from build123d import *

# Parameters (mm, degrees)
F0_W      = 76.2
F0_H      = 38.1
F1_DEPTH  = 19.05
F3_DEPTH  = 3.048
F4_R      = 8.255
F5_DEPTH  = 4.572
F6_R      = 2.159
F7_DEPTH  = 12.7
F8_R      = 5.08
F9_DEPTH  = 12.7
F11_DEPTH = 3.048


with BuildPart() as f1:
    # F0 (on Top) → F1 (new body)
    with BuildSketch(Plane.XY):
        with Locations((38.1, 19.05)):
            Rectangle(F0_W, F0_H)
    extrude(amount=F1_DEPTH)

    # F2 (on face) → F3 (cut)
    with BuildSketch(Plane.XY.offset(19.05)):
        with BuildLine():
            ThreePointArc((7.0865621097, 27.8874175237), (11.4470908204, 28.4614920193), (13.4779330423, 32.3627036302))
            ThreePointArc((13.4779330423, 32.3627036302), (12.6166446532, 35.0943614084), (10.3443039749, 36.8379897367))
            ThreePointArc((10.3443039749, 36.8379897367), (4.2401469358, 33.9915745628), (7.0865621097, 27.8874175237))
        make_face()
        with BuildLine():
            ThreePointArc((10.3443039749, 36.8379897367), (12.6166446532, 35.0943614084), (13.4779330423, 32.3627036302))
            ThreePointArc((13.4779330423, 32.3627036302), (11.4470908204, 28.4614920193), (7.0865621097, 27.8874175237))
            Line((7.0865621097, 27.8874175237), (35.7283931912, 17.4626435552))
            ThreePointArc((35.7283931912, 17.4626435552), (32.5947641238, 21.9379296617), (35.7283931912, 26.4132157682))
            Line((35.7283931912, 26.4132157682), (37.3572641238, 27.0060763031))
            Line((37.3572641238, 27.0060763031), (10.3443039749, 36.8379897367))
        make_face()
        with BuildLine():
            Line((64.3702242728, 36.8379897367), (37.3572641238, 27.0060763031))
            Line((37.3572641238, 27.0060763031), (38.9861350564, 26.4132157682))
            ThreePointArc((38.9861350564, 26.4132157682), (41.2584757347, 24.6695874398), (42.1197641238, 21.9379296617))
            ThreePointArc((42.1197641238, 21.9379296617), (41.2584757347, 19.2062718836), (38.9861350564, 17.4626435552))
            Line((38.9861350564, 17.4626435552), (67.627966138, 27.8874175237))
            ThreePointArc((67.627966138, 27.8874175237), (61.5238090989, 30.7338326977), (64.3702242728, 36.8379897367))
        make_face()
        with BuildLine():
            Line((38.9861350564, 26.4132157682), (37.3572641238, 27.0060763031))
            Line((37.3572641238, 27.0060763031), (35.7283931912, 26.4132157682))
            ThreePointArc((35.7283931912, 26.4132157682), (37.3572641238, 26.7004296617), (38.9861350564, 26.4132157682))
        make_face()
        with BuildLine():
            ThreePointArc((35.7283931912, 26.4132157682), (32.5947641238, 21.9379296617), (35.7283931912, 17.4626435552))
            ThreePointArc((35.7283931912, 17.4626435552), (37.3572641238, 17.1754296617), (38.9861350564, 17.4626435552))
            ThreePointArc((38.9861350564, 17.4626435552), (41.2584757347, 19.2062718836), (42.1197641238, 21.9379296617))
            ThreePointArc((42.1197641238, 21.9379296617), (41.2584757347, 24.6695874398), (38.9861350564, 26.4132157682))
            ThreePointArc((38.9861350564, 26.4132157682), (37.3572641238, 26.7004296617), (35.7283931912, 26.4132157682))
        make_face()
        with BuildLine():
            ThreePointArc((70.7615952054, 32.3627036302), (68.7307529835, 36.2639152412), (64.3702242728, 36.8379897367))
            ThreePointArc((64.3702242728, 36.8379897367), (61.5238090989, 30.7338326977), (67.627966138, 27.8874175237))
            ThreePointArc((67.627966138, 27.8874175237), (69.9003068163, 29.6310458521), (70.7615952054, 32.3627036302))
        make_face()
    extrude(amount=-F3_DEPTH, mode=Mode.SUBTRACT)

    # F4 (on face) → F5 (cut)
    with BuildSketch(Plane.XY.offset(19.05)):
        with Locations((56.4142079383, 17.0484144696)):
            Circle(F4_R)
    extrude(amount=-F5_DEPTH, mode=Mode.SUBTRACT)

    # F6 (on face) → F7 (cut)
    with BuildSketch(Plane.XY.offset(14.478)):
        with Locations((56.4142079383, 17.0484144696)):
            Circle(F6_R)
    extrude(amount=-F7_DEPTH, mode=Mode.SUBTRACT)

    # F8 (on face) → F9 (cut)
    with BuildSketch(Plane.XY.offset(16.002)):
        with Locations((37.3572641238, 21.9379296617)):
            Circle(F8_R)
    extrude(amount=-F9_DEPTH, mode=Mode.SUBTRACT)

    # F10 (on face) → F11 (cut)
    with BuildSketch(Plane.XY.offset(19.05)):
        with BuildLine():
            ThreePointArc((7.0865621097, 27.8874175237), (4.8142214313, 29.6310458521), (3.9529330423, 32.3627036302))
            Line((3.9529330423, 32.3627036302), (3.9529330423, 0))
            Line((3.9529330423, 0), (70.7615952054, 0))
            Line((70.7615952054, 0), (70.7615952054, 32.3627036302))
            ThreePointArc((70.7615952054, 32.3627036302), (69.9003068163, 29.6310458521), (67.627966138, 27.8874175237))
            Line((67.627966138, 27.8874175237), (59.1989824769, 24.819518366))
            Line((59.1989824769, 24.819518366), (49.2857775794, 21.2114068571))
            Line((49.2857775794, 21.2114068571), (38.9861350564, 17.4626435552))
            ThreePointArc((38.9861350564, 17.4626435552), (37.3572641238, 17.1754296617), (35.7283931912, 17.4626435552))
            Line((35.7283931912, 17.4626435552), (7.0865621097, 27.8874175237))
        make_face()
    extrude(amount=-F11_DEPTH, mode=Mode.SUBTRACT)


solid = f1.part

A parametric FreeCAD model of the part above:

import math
import FreeCAD as App
import Part
import Sketcher
Q = App.Units.Quantity

doc = App.newDocument("Part")
body = doc.addObject("PartDesign::Body", "Body")

# Sketch on XY plane
sketch1 = body.newObject("Sketcher::SketchObject", "Sketch")
sketch1.AttachmentSupport = (doc.getObject("XY_Plane"), [""])
sketch1.MapMode = "FlatFace"
sketch1.addGeometry(Part.LineSegment(App.Vector(0, 38, 0), App.Vector(0, 0, 0)), False)
sketch1.addGeometry(Part.LineSegment(App.Vector(0, 0, 0), App.Vector(76, 0, 0)), False)
sketch1.addGeometry(Part.LineSegment(App.Vector(76, 0, 0), App.Vector(76, 38, 0)), False)
sketch1.addGeometry(Part.LineSegment(App.Vector(76, 38, 0), App.Vector(0, 38, 0)), False)
sketch1.addConstraint(Sketcher.Constraint("Coincident", 0, 2, 1, 1))
sketch1.addConstraint(Sketcher.Constraint("Coincident", 1, 2, 2, 1))
sketch1.addConstraint(Sketcher.Constraint("Coincident", 2, 2, 3, 1))
sketch1.addConstraint(Sketcher.Constraint("Coincident", 3, 2, 0, 1))
sketch1.addConstraint(Sketcher.Constraint("Vertical", 0))
sketch1.addConstraint(Sketcher.Constraint("Horizontal", 1))
sketch1.addConstraint(Sketcher.Constraint("Vertical", 2))
sketch1.addConstraint(Sketcher.Constraint("Horizontal", 3))
sketch1.addConstraint(Sketcher.Constraint("Coincident", 0, 2, -1, 1))
sketch1.addConstraint(Sketcher.Constraint("DistanceX", 1, 1, 1, 2, Q("3 in")))
sketch1.addConstraint(Sketcher.Constraint("DistanceY", 0, 2, 0, 1, Q("1.5 in")))
pad1 = body.newObject("PartDesign::Pad", "Pad")
pad1.Profile = sketch1
pad1.Length = Q("0.75 in")

# Sketch on XY plane
sketch2 = body.newObject("Sketcher::SketchObject", "Sketch001")
sketch2.AttachmentSupport = (doc.getObject("XY_Plane"), [""])
sketch2.MapMode = "FlatFace"
sketch2.AttachmentOffset = App.Placement(App.Vector(0, 0, 0.75 * 25.4), App.Rotation())
sketch2.addGeometry(Part.ArcOfCircle(Part.Circle(App.Vector(8.7, 32.4, 0), App.Vector(0, 0, 1), 4.8), math.radians(70), math.radians(250)), False)
sketch2.addGeometry(Part.LineSegment(App.Vector(7.1, 27.9, 0), App.Vector(35.7, 17.5, 0)), False)
sketch2.addGeometry(Part.ArcOfCircle(Part.Circle(App.Vector(37.4, 21.9, 0), App.Vector(0, 0, 1), 4.8), math.radians(-110), math.radians(-70)), False)
sketch2.addGeometry(Part.LineSegment(App.Vector(39, 17.5, 0), App.Vector(67.6, 27.9, 0)), False)
sketch2.addGeometry(Part.ArcOfCircle(Part.Circle(App.Vector(66, 32.4, 0), App.Vector(0, 0, 1), 4.8), math.radians(-70), math.radians(0)), False)
sketch2.addGeometry(Part.ArcOfCircle(Part.Circle(App.Vector(66, 32.4, 0), App.Vector(0, 0, 1), 4.8), math.radians(0), math.radians(110)), False)
sketch2.addGeometry(Part.LineSegment(App.Vector(64.4, 36.8, 0), App.Vector(37.4, 27, 0)), False)
sketch2.addGeometry(Part.LineSegment(App.Vector(37.4, 27, 0), App.Vector(10.3, 36.8, 0)), False)
sketch2.addConstraint(Sketcher.Constraint("Tangent", 0, 2, 1, 1))
sketch2.addConstraint(Sketcher.Constraint("Tangent", 1, 2, 2, 1))
sketch2.addConstraint(Sketcher.Constraint("Tangent", 2, 2, 3, 1))
sketch2.addConstraint(Sketcher.Constraint("Tangent", 3, 2, 4, 1))
sketch2.addConstraint(Sketcher.Constraint("Tangent", 4, 2, 5, 1))
sketch2.addConstraint(Sketcher.Constraint("Tangent", 5, 2, 6, 1))
sketch2.addConstraint(Sketcher.Constraint("Coincident", 6, 2, 7, 1))
sketch2.addConstraint(Sketcher.Constraint("Tangent", 7, 2, 0, 1))
sketch2.addConstraint(Sketcher.Constraint("Equal", 0, 2))
sketch2.addConstraint(Sketcher.Constraint("Equal", 2, 4))
sketch2.addConstraint(Sketcher.Constraint("Equal", 4, 5))
sketch2.addConstraint(Sketcher.Constraint("Parallel", 3, 6))
sketch2.addConstraint(Sketcher.Constraint("Parallel", 1, 7))
sketch2.addConstraint(Sketcher.Constraint("Horizontal", 0, 3, 4, 3))
sketch2.addConstraint(Sketcher.Constraint("Horizontal", 1, 2, 2, 2))
sketch2.addConstraint(Sketcher.Constraint("Horizontal", 5, 3, 4, 2))
sketch2.addConstraint(Sketcher.Constraint("Angle", 1, Q("-20 deg")))
sketch2.addConstraint(Sketcher.Constraint("Radius", 0, Q("0.1875 in")))
sketch2.addConstraint(Sketcher.Constraint("Distance", 1, Q("1.2 in")))
sketch2.addConstraint(Sketcher.Constraint("DistanceY", -1, 1, 2, 3, 21.93793))
sketch2.addConstraint(Sketcher.Constraint("DistanceX", -1, 1, 0, 3, 8.715433))
pocket1 = body.newObject("PartDesign::Pocket", "Pocket")
pocket1.Profile = sketch2
pocket1.Length = Q("0.12 in")

# Sketch on XY plane
sketch3 = body.newObject("Sketcher::SketchObject", "Sketch002")
sketch3.AttachmentSupport = (doc.getObject("XY_Plane"), [""])
sketch3.MapMode = "FlatFace"
sketch3.AttachmentOffset = App.Placement(App.Vector(0, 0, 0.75 * 25.4), App.Rotation())
sketch3.addGeometry(Part.Circle(App.Vector(56, 17, 0), App.Vector(0, 0, 1), 8), False)
sketch3.addConstraint(Sketcher.Constraint("Diameter", 0, Q("0.65 in")))
sketch3.addConstraint(Sketcher.Constraint("DistanceX", -1, 1, 0, 3, 56.414208))
sketch3.addConstraint(Sketcher.Constraint("DistanceY", -1, 1, 0, 3, 17.048414))
pocket2 = body.newObject("PartDesign::Pocket", "Pocket001")
pocket2.Profile = sketch3
pocket2.Length = Q("0.18 in")

# Sketch on XY plane
sketch4 = body.newObject("Sketcher::SketchObject", "Sketch003")
sketch4.AttachmentSupport = (doc.getObject("XY_Plane"), [""])
sketch4.MapMode = "FlatFace"
sketch4.AttachmentOffset = App.Placement(App.Vector(0, 0, 0.57 * 25.4), App.Rotation())
sketch4.addGeometry(Part.Circle(App.Vector(56.4, 17, 0), App.Vector(0, 0, 1), 2.2), False)
sketch4.addConstraint(Sketcher.Constraint("Diameter", 0, Q("0.17 in")))
sketch4.addConstraint(Sketcher.Constraint("DistanceX", -1, 1, 0, 3, 56.414208))
sketch4.addConstraint(Sketcher.Constraint("DistanceY", -1, 1, 0, 3, 17.048414))
pocket3 = body.newObject("PartDesign::Pocket", "Pocket002")
pocket3.Profile = sketch4
pocket3.Length = Q("0.5 in")

# Sketch on XY plane
sketch5 = body.newObject("Sketcher::SketchObject", "Sketch004")
sketch5.AttachmentSupport = (doc.getObject("XY_Plane"), [""])
sketch5.MapMode = "FlatFace"
sketch5.AttachmentOffset = App.Placement(App.Vector(0, 0, 0.63 * 25.4), App.Rotation())
sketch5.addGeometry(Part.Circle(App.Vector(37, 22, 0), App.Vector(0, 0, 1), 5), False)
sketch5.addConstraint(Sketcher.Constraint("Diameter", 0, Q("0.4 in")))
sketch5.addConstraint(Sketcher.Constraint("DistanceY", -1, 1, 0, 3, 21.93793))
sketch5.addConstraint(Sketcher.Constraint("DistanceX", -1, 1, 0, 3, 37.357264))
pocket4 = body.newObject("PartDesign::Pocket", "Pocket003")
pocket4.Profile = sketch5
pocket4.Length = Q("0.5 in")

# Sketch on XY plane
sketch6 = body.newObject("Sketcher::SketchObject", "Sketch005")
sketch6.AttachmentSupport = (doc.getObject("XY_Plane"), [""])
sketch6.MapMode = "FlatFace"
sketch6.AttachmentOffset = App.Placement(App.Vector(0, 0, 0.75 * 25.4), App.Rotation())
sketch6.addGeometry(Part.ArcOfCircle(Part.Circle(App.Vector(8.7, 32.4, 0), App.Vector(0, 0, 1), 4.8), math.radians(180), math.radians(250)), False)
sketch6.addGeometry(Part.LineSegment(App.Vector(4, 32.4, 0), App.Vector(4, 0, 0)), False)
sketch6.addGeometry(Part.LineSegment(App.Vector(4, 0, 0), App.Vector(70.8, 0, 0)), False)
sketch6.addGeometry(Part.LineSegment(App.Vector(70.8, 0, 0), App.Vector(70.8, 32.4, 0)), False)
sketch6.addGeometry(Part.ArcOfCircle(Part.Circle(App.Vector(66, 32.4, 0), App.Vector(0, 0, 1), 4.8), math.radians(-70), math.radians(0)), False)
sketch6.addGeometry(Part.LineSegment(App.Vector(67.6, 27.9, 0), App.Vector(59.2, 24.8, 0)), False)
sketch6.addGeometry(Part.LineSegment(App.Vector(59.2, 24.8, 0), App.Vector(49.3, 21.2, 0)), False)
sketch6.addGeometry(Part.LineSegment(App.Vector(49.3, 21.2, 0), App.Vector(39, 17.5, 0)), False)
sketch6.addGeometry(Part.ArcOfCircle(Part.Circle(App.Vector(37.4, 21.9, 0), App.Vector(0, 0, 1), 4.8), math.radians(-110), math.radians(-70)), False)
sketch6.addGeometry(Part.LineSegment(App.Vector(35.7, 17.5, 0), App.Vector(7.1, 27.9, 0)), False)
sketch6.addConstraint(Sketcher.Constraint("Tangent", 0, 1, 1, 1))
sketch6.addConstraint(Sketcher.Constraint("Coincident", 1, 2, 2, 1))
sketch6.addConstraint(Sketcher.Constraint("Coincident", 2, 2, 3, 1))
sketch6.addConstraint(Sketcher.Constraint("Tangent", 3, 2, 4, 2))
sketch6.addConstraint(Sketcher.Constraint("Tangent", 4, 1, 5, 1))
sketch6.addConstraint(Sketcher.Constraint("Coincident", 5, 2, 6, 1))
sketch6.addConstraint(Sketcher.Constraint("Coincident", 6, 2, 7, 1))
sketch6.addConstraint(Sketcher.Constraint("Tangent", 7, 2, 8, 2))
sketch6.addConstraint(Sketcher.Constraint("Tangent", 8, 1, 9, 1))
sketch6.addConstraint(Sketcher.Constraint("Tangent", 9, 2, 0, 2))
sketch6.addConstraint(Sketcher.Constraint("Vertical", 1))
sketch6.addConstraint(Sketcher.Constraint("Horizontal", 2))
sketch6.addConstraint(Sketcher.Constraint("Vertical", 3))
sketch6.addConstraint(Sketcher.Constraint("Equal", 0, 4))
sketch6.addConstraint(Sketcher.Constraint("Equal", 4, 8))
sketch6.addConstraint(Sketcher.Constraint("PointOnObject", 1, 2, -1))
sketch6.addConstraint(Sketcher.Constraint("Parallel", 5, 6))
sketch6.addConstraint(Sketcher.Constraint("Parallel", 6, 7))
sketch6.addConstraint(Sketcher.Constraint("Horizontal", 0, 3, 4, 3))
sketch6.addConstraint(Sketcher.Constraint("Horizontal", 7, 2, 8, 1))
sketch6.addConstraint(Sketcher.Constraint("Angle", 5, Q("-160 deg")))
sketch6.addConstraint(Sketcher.Constraint("Radius", 0, Q("0.1875 in")))
sketch6.addConstraint(Sketcher.Constraint("Distance", 9, Q("1.2 in")))
sketch6.addConstraint(Sketcher.Constraint("DistanceY", 5, 2, 4, 1, 3.067899))
sketch6.addConstraint(Sketcher.Constraint("Distance", 7, 10.960651))
sketch6.addConstraint(Sketcher.Constraint("DistanceY", 1, 2, 1, 1, 32.362704))
sketch6.addConstraint(Sketcher.Constraint("DistanceX", -1, 1, 0, 3, 8.715433))
pocket5 = body.newObject("PartDesign::Pocket", "Pocket004")
pocket5.Profile = sketch6
pocket5.Length = Q("0.12 in")

doc.recompute()
